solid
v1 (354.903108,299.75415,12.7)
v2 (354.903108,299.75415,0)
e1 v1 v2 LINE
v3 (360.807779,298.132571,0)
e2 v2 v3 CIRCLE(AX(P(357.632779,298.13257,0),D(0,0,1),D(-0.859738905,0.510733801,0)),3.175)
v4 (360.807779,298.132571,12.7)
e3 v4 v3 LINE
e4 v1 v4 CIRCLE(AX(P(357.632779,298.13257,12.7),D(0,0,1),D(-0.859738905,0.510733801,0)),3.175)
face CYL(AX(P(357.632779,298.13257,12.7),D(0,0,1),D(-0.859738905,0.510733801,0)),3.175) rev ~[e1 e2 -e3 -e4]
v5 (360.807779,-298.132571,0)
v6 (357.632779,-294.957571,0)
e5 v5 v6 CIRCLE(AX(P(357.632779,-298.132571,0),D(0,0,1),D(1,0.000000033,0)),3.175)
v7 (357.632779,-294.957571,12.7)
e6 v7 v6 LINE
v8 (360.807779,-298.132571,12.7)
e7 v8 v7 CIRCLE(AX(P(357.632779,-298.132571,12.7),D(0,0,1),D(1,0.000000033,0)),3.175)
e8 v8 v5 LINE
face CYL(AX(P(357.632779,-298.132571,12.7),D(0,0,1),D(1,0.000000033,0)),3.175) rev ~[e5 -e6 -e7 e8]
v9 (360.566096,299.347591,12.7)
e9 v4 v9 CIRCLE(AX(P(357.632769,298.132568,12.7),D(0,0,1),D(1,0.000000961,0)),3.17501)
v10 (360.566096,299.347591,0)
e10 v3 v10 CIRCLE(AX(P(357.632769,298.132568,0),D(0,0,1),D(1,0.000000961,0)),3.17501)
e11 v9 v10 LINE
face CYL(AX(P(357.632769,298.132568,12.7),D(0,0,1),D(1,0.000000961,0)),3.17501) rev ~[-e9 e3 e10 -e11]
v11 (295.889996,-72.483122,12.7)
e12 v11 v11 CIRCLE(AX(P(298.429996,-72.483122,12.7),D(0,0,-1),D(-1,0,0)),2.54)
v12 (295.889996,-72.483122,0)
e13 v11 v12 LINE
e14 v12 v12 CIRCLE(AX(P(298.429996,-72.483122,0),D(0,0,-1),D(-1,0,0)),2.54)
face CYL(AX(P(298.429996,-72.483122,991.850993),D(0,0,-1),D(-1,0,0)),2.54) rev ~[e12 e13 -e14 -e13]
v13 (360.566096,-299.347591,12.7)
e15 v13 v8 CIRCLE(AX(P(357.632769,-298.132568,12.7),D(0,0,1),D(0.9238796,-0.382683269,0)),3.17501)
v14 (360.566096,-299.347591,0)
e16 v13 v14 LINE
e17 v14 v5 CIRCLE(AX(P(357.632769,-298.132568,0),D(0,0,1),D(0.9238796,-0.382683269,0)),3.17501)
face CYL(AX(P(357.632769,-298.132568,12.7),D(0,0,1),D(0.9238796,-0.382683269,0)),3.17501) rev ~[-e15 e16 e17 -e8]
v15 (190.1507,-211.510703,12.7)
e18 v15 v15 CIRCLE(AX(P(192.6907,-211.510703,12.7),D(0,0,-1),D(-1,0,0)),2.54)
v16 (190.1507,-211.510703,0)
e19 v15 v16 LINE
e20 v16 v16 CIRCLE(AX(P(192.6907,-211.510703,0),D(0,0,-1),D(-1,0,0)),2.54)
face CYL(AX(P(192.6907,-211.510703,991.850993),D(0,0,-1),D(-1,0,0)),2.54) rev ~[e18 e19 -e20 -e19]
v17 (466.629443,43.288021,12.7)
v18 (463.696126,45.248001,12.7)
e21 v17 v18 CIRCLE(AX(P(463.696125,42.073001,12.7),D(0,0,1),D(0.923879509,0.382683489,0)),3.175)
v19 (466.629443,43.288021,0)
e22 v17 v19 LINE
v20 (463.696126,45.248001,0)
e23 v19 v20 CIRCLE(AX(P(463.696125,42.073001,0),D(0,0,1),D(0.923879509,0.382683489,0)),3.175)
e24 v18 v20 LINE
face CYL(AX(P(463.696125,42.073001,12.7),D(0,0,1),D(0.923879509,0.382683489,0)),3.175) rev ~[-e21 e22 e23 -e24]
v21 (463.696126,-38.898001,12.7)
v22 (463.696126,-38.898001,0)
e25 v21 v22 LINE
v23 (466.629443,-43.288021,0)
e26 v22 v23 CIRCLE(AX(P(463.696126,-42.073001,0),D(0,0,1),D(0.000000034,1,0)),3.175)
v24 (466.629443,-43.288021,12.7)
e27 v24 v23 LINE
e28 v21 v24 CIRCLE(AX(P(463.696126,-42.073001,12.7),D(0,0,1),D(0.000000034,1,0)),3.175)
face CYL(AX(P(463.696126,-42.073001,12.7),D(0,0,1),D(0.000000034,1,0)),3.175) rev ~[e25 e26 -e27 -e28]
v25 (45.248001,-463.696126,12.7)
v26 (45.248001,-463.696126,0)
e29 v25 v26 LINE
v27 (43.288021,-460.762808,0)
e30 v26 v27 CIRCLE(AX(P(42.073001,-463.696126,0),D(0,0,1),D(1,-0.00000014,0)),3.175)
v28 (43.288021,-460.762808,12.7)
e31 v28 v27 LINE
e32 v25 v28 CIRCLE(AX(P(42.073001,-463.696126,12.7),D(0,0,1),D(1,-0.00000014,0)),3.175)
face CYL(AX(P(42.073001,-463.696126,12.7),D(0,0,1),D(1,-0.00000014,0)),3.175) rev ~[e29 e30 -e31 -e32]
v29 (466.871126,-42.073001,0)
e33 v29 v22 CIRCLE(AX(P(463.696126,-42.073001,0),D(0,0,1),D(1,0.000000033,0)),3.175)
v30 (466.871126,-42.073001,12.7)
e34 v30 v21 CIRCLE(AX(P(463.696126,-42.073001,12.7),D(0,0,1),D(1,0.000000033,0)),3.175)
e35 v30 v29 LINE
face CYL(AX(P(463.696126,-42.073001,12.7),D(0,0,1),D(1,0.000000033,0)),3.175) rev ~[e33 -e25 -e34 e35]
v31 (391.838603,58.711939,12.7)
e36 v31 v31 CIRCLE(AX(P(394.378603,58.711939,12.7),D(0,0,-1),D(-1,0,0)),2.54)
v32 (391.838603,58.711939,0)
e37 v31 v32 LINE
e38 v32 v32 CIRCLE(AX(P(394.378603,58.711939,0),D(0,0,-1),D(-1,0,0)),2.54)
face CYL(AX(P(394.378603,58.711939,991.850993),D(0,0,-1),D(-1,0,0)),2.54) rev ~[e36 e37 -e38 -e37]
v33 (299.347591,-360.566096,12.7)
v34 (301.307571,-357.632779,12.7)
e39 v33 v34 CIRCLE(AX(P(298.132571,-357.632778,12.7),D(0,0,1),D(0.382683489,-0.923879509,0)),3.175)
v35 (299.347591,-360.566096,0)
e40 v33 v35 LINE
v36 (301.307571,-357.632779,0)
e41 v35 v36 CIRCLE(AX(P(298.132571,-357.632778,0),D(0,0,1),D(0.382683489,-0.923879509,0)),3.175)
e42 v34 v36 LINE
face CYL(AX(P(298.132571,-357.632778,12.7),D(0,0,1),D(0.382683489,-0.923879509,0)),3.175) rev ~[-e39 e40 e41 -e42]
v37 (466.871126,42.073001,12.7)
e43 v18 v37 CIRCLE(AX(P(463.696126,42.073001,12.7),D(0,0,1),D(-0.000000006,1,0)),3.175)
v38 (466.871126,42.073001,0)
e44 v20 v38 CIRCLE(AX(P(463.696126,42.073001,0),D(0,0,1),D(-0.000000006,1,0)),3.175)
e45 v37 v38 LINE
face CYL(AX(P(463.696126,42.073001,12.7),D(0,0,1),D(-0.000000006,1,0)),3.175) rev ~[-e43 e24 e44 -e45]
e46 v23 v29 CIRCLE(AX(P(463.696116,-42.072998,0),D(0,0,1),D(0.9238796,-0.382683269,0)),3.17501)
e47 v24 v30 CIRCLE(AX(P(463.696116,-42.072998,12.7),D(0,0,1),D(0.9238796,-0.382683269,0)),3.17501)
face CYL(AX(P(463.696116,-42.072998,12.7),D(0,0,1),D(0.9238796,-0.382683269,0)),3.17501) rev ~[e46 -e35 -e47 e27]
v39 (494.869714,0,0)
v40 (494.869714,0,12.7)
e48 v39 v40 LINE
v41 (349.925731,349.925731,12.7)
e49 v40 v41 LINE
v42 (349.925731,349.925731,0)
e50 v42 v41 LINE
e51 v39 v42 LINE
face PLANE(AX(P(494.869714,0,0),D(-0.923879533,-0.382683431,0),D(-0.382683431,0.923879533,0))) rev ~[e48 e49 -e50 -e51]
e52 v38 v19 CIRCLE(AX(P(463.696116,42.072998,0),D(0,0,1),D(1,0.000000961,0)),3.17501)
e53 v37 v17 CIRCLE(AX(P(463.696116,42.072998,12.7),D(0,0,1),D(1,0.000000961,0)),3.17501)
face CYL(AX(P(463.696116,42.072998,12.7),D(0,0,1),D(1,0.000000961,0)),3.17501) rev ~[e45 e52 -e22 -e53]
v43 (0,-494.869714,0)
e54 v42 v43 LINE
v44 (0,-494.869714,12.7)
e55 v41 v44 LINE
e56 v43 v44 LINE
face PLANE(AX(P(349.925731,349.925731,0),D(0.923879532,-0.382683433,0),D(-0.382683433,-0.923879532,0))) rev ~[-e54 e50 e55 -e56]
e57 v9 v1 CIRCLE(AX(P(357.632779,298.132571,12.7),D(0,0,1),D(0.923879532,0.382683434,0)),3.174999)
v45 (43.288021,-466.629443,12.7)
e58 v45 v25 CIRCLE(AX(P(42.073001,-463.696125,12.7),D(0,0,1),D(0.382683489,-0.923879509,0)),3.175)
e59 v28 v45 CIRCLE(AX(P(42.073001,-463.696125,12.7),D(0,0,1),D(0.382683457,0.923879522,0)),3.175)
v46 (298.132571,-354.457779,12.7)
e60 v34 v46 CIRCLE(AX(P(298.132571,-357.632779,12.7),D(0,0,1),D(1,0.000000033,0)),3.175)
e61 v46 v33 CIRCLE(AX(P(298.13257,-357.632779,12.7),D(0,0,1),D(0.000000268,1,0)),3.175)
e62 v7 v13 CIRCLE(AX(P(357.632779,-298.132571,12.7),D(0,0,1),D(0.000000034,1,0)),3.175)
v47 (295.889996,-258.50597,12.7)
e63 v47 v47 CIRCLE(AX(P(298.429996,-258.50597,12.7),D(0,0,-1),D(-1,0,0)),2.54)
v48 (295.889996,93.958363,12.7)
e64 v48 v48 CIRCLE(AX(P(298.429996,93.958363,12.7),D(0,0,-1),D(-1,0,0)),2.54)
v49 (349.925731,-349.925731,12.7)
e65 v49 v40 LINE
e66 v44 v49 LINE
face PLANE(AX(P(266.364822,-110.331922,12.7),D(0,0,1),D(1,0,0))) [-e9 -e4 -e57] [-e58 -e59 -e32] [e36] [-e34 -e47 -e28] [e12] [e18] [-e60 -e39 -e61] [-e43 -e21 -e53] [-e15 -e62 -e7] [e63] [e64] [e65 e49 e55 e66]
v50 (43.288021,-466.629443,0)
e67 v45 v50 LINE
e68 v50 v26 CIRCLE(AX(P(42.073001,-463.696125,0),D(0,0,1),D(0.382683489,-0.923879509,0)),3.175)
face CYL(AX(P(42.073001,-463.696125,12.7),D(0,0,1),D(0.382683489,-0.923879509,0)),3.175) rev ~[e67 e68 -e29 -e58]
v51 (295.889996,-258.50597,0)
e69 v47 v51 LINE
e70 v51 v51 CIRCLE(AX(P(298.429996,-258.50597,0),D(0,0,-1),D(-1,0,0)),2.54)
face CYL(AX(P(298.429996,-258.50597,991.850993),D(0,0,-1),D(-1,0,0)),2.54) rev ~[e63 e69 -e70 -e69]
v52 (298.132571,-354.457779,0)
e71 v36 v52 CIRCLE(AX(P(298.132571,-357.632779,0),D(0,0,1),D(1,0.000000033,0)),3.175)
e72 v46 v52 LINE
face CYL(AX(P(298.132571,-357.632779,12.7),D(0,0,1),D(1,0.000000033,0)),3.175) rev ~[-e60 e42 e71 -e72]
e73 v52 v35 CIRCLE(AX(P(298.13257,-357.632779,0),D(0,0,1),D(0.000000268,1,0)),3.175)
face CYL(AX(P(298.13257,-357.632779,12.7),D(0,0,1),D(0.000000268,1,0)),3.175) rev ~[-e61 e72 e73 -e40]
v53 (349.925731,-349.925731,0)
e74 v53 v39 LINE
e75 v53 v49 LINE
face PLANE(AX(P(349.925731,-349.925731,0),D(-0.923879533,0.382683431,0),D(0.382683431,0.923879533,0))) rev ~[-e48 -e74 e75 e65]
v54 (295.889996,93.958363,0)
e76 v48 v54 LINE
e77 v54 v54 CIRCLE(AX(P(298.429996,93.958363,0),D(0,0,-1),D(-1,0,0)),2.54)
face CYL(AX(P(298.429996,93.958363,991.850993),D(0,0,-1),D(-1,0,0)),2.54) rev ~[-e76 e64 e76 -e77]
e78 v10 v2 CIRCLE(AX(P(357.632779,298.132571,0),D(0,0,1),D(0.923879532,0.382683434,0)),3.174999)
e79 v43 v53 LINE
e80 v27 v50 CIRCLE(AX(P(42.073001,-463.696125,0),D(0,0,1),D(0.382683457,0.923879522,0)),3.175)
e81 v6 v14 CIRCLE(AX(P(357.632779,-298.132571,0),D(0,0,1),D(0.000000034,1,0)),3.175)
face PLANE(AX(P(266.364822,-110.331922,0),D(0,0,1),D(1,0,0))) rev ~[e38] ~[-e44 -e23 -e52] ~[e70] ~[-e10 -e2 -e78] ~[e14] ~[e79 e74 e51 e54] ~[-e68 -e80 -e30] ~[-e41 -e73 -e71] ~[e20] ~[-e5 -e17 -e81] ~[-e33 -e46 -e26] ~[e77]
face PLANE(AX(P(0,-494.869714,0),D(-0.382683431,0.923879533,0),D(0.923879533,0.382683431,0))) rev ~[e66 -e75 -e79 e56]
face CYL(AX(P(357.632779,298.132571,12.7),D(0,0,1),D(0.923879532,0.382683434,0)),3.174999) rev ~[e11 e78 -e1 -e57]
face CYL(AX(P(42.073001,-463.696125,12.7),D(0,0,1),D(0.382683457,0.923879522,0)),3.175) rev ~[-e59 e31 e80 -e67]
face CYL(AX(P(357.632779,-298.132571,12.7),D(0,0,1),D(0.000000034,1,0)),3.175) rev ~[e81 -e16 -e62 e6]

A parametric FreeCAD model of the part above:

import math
import FreeCAD as App
import Part
import Sketcher

V = App.Vector
Q = App.Units.Quantity


def add_polygon(sketch, points):
    """Adds a closed chain of lines whose ends are joined by coincident constraints."""
    first, n = sketch.GeometryCount, len(points)
    for a, b in zip(points, points[1:] + points[:1]):
        sketch.addGeometry(Part.LineSegment(App.Vector(*a, 0), App.Vector(*b, 0)), False)
    for i in range(n):
        sketch.addConstraint(Sketcher.Constraint("Coincident", first + i, 2, first + (i + 1) % n, 1))

doc = App.newDocument("Part")
params = doc.addObject("Spreadsheet::Sheet", "Params")
for row, (alias, value) in enumerate([
    ("sketch1_length", "36 in"),
    ("pad1_length", "0.5 in"),
    ("sketch2_radius", "0.125 in"),
    ("sketch3_diameter", "0.2 in"),
    ("hole_diameter", "0.2 in"),
], start=1):
    params.set(f"A{row}", alias)
    params.set(f"B{row}", "=" + value)
    params.setAlias(f"B{row}", alias)

body = doc.addObject("PartDesign::Body", "Body")

sketch1 = body.newObject("Sketcher::SketchObject", "Sketch")
sketch1.AttachmentSupport = (doc.getObject("XY_Plane"), [""])
sketch1.MapMode = "FlatFace"
add_polygon(sketch1, [(350, -350), (495, 0), (350, 350), (0, -495)])
sketch1.addConstraint(Sketcher.Constraint("Symmetric", 1, 2, 3, 2, -1))
sketch1.addConstraint(Sketcher.Constraint("PointOnObject", 0, 2, -1))
sketch1.addConstraint(Sketcher.Constraint("PointOnObject", 2, 2, -2))
sketch1.addConstraint(Sketcher.Constraint("Parallel", 0, 2))
sketch1.addConstraint(Sketcher.Constraint("Perpendicular", 1, 3))
sketch1.addConstraint(Sketcher.Constraint("Equal", 1, 3))
sketch1.addConstraint(Sketcher.Constraint("Distance", 2, Q("36 in")))
sketch1.setExpression("Constraints[10]", "Params.sketch1_length")
pad1 = body.newObject("PartDesign::Pad", "Pad")
pad1.Profile = sketch1
pad1.setExpression("Length", "Params.pad1_length")

sketch2 = body.newObject("Sketcher::SketchObject", "Sketch001")
sketch2.AttachmentSupport = (doc.getObject("XY_Plane"), [""])
sketch2.MapMode = "FlatFace"
sketch2.AttachmentOffset = App.Placement(V(0, 0, 0.5 * 25.4), App.Rotation())
sketch2.addGeometry(Part.ArcOfCircle(Part.Circle(V(357.6, 298.1, 0), V(0, 0, 1), 3.2), math.radians(149), math.radians(360)), False)
sketch2.addGeometry(Part.ArcOfCircle(Part.Circle(V(357.6, 298.1, 0), V(0, 0, 1), 3.2), math.radians(0), math.radians(22)), False)
sketch2.addGeometry(Part.ArcOfCircle(Part.Circle(V(357.6, 298.1, 0), V(0, 0, 1), 3.2), math.radians(23), math.radians(149)), False)
sketch2.addGeometry(Part.ArcOfCircle(Part.Circle(V(463.7, 42.1, 0), V(0, 0, 1), 3.2), math.radians(90), math.radians(360)), False)
sketch2.addGeometry(Part.ArcOfCircle(Part.Circle(V(463.7, 42.1, 0), V(0, 0, 1), 3.2), math.radians(0), math.radians(22)), False)
sketch2.addGeometry(Part.ArcOfCircle(Part.Circle(V(463.7, 42.1, 0), V(0, 0, 1), 3.2), math.radians(23), math.radians(90)), False)
sketch2.addGeometry(Part.ArcOfCircle(Part.Circle(V(463.7, -42.1, 0), V(0, 0, 1), 3.2), math.radians(-22), math.radians(0)), False)
sketch2.addGeometry(Part.ArcOfCircle(Part.Circle(V(463.7, -42.1, 0), V(0, 0, 1), 3.2), math.radians(0), math.radians(90)), False)
sketch2.addGeometry(Part.ArcOfCircle(Part.Circle(V(463.7, -42.1, 0), V(0, 0, 1), 3.2), math.radians(90), math.radians(337)), False)
sketch2.addGeometry(Part.ArcOfCircle(Part.Circle(V(357.6, -298.1, 0), V(0, 0, 1), 3.2), math.radians(-22), math.radians(0)), False)
sketch2.addGeometry(Part.ArcOfCircle(Part.Circle(V(357.6, -298.1, 0), V(0, 0, 1), 3.2), math.radians(0), math.radians(90)), False)
sketch2.addGeometry(Part.ArcOfCircle(Part.Circle(V(357.6, -298.1, 0), V(0, 0, 1), 3.2), math.radians(90), math.radians(337)), False)
sketch2.addGeometry(Part.ArcOfCircle(Part.Circle(V(298.1, -357.6, 0), V(0, 0, 1), 3.2), math.radians(-67), math.radians(0)), False)
sketch2.addGeometry(Part.ArcOfCircle(Part.Circle(V(298.1, -357.6, 0), V(0, 0, 1), 3.2), math.radians(0), math.radians(90)), False)
sketch2.addGeometry(Part.ArcOfCircle(Part.Circle(V(298.1, -357.6, 0), V(0, 0, 1), 3.2), math.radians(90), math.radians(293)), False)
sketch2.addGeometry(Part.ArcOfCircle(Part.Circle(V(42.1, -463.7, 0), V(0, 0, 1), 3.2), math.radians(-67), math.radians(0)), False)
sketch2.addGeometry(Part.ArcOfCircle(Part.Circle(V(42.1, -463.7, 0), V(0, 0, 1), 3.2), math.radians(0), math.radians(67)), False)
sketch2.addGeometry(Part.ArcOfCircle(Part.Circle(V(42.1, -463.7, 0), V(0, 0, 1), 3.2), math.radians(67), math.radians(293)), False)
sketch2.addConstraint(Sketcher.Constraint("Tangent", 0, 2, 1, 1))
sketch2.addConstraint(Sketcher.Constraint("Tangent", 1, 2, 2, 1))
sketch2.addConstraint(Sketcher.Constraint("Tangent", 2, 2, 0, 1))
sketch2.addConstraint(Sketcher.Constraint("Tangent", 3, 2, 4, 1))
sketch2.addConstraint(Sketcher.Constraint("Tangent", 4, 2, 5, 1))
sketch2.addConstraint(Sketcher.Constraint("Tangent", 5, 2, 3, 1))
sketch2.addConstraint(Sketcher.Constraint("Tangent", 6, 2, 7, 1))
sketch2.addConstraint(Sketcher.Constraint("Tangent", 7, 2, 8, 1))
sketch2.addConstraint(Sketcher.Constraint("Tangent", 8, 2, 6, 1))
sketch2.addConstraint(Sketcher.Constraint("Tangent", 9, 2, 10, 1))
sketch2.addConstraint(Sketcher.Constraint("Tangent", 10, 2, 11, 1))
sketch2.addConstraint(Sketcher.Constraint("Tangent", 11, 2, 9, 1))
sketch2.addConstraint(Sketcher.Constraint("Tangent", 12, 2, 13, 1))
sketch2.addConstraint(Sketcher.Constraint("Tangent", 13, 2, 14, 1))
sketch2.addConstraint(Sketcher.Constraint("Tangent", 14, 2, 12, 1))
sketch2.addConstraint(Sketcher.Constraint("Tangent", 15, 2, 16, 1))
sketch2.addConstraint(Sketcher.Constraint("Tangent", 16, 2, 17, 1))
sketch2.addConstraint(Sketcher.Constraint("Tangent", 17, 2, 15, 1))
sketch2.addConstraint(Sketcher.Constraint("Equal", 2, 3))
sketch2.addConstraint(Sketcher.Constraint("Equal", 4, 6))
sketch2.addConstraint(Sketcher.Constraint("Equal", 6, 9))
sketch2.addConstraint(Sketcher.Constraint("Equal", 11, 12))
sketch2.addConstraint(Sketcher.Constraint("Equal", 14, 15))
sketch2.addConstraint(Sketcher.Constraint("Symmetric", 4, 3, 6, 3, -1))
sketch2.addConstraint(Sketcher.Constraint("Symmetric", 0, 3, 9, 3, -1))
sketch2.addConstraint(Sketcher.Constraint("Horizontal", 2, 3, 0, 2))
sketch2.addConstraint(Sketcher.Constraint("Horizontal", 5, 3, 3, 2))
sketch2.addConstraint(Sketcher.Constraint("Horizontal", 8, 3, 6, 2))
sketch2.addConstraint(Sketcher.Constraint("Horizontal", 11, 3, 9, 2))
sketch2.addConstraint(Sketcher.Constraint("Horizontal", 14, 3, 12, 2))
sketch2.addConstraint(Sketcher.Constraint("Horizontal", 17, 3, 15, 2))
sketch2.addConstraint(Sketcher.Constraint("Vertical", 8, 3, 5, 2))
sketch2.addConstraint(Sketcher.Constraint("Vertical", 5, 2, 7, 2))
sketch2.addConstraint(Sketcher.Constraint("Vertical", 4, 2, 8, 2))
sketch2.addConstraint(Sketcher.Constraint("Vertical", 11, 3, 10, 2))
sketch2.addConstraint(Sketcher.Constraint("Vertical", 1, 2, 11, 2))
sketch2.addConstraint(Sketcher.Constraint("Vertical", 14, 3, 13, 2))
sketch2.addConstraint(Sketcher.Constraint("Vertical", 16, 2, 17, 2))
sketch2.addConstraint(Sketcher.Constraint("Radius", 0, Q("0.125 in")))
sketch2.addConstraint(Sketcher.Constraint("DistanceY", -1, 1, 3, 3, Q("42.073001 mm")))
sketch2.addConstraint(Sketcher.Constraint("DistanceX", -1, 1, 15, 3, Q("42.073001 mm")))
sketch2.addConstraint(Sketcher.Constraint("DistanceX", 12, 3, 9, 3, Q("59.500199 mm")))
sketch2.addConstraint(Sketcher.Constraint("DistanceX", -1, 1, 0, 3, Q("357.632779 mm")))
sketch2.addConstraint(Sketcher.Constraint("DistanceY", -1, 1, 0, 3, Q("298.13257 mm")))
sketch2.addConstraint(Sketcher.Constraint("DistanceY", 12, 3, -1, 1, Q("357.632778 mm")))
sketch2.addConstraint(Sketcher.Constraint("DistanceY", -1, 1, 1, 2, Q("299.347591 mm")))
sketch2.addConstraint(Sketcher.Constraint("DistanceY", -1, 1, 2, 2, Q("299.75415 mm")))
sketch2.addConstraint(Sketcher.Constraint("DistanceY", -1, 1, 4, 2, Q("43.288021 mm")))
sketch2.addConstraint(Sketcher.Constraint("DistanceX", -1, 1, 14, 2, Q("299.347591 mm")))
sketch2.addConstraint(Sketcher.Constraint("DistanceX", -1, 1, 16, 2, Q("43.288021 mm")))
sketch2.addConstraint(Sketcher.Constraint("DistanceY", 16, 2, -1, 1, Q("460.762808 mm")))
sketch2.addConstraint(Sketcher.Constraint("DistanceX", 1, 2, 4, 3, Q("103.13002 mm")))
sketch2.setExpression("Constraints[38]", "Params.sketch2_radius")
pocket1 = body.newObject("PartDesign::Pocket", "Pocket")
pocket1.Profile = sketch2
pocket1.Type = "ThroughAll"

sketch3 = body.newObject("Sketcher::SketchObject", "Sketch002")
sketch3.AttachmentSupport = (doc.getObject("XY_Plane"), [""])
sketch3.MapMode = "FlatFace"
sketch3.AttachmentOffset = App.Placement(V(0, 0, 0.5 * 25.4), App.Rotation())
sketch3.addGeometry(Part.Circle(V(298.4, 94, 0), V(0, 0, 1), 2.5), False)
sketch3.addGeometry(Part.Circle(V(394.4, 58.7, 0), V(0, 0, 1), 2.5), False)
sketch3.addGeometry(Part.Circle(V(298.4, -72.5, 0), V(0, 0, 1), 2.5), False)
sketch3.addGeometry(Part.Circle(V(192.7, -211.5, 0), V(0, 0, 1), 2.5), False)
sketch3.addGeometry(Part.Circle(V(298.4, -258.5, 0), V(0, 0, 1), 2.5), False)
sketch3.addConstraint(Sketcher.Constraint("Equal", 0, 1))
sketch3.addConstraint(Sketcher.Constraint("Equal", 1, 2))
sketch3.addConstraint(Sketcher.Constraint("Equal", 2, 3))
sketch3.addConstraint(Sketcher.Constraint("Equal", 3, 4))
sketch3.addConstraint(Sketcher.Constraint("Vertical", 0, 3, 2, 3))
sketch3.addConstraint(Sketcher.Constraint("Vertical", 2, 3, 4, 3))
sketch3.addConstraint(Sketcher.Constraint("Diameter", 0, Q("0.2 in")))
sketch3.addConstraint(Sketcher.Constraint("DistanceX", -1, 1, 3, 3, Q("192.6907 mm")))
sketch3.addConstraint(Sketcher.Constraint("DistanceY", -1, 1, 1, 3, Q("58.711939 mm")))
sketch3.addConstraint(Sketcher.Constraint("DistanceY", 2, 3, -1, 1, Q("72.483122 mm")))
sketch3.addConstraint(Sketcher.Constraint("DistanceY", 4, 3, -1, 1, Q("258.50597 mm")))
sketch3.addConstraint(Sketcher.Constraint("DistanceY", 3, 3, 2, 3, Q("139.027581 mm")))
sketch3.addConstraint(Sketcher.Constraint("DistanceX", -1, 1, 0, 3, Q("298.429996 mm")))
sketch3.addConstraint(Sketcher.Constraint("DistanceY", -1, 1, 0, 3, Q("93.958363 mm")))
sketch3.addConstraint(Sketcher.Constraint("DistanceX", -1, 1, 1, 3, Q("394.378603 mm")))
sketch3.setExpression("Constraints[6]", "Params.sketch3_diameter")
doc.recompute()
hole = body.newObject("PartDesign::Hole", "Hole")
hole.Profile = sketch3
hole.ThreadType = "None"
hole.setExpression("Diameter", "Params.hole_diameter")
hole.DepthType = "ThroughAll"

doc.recompute()
